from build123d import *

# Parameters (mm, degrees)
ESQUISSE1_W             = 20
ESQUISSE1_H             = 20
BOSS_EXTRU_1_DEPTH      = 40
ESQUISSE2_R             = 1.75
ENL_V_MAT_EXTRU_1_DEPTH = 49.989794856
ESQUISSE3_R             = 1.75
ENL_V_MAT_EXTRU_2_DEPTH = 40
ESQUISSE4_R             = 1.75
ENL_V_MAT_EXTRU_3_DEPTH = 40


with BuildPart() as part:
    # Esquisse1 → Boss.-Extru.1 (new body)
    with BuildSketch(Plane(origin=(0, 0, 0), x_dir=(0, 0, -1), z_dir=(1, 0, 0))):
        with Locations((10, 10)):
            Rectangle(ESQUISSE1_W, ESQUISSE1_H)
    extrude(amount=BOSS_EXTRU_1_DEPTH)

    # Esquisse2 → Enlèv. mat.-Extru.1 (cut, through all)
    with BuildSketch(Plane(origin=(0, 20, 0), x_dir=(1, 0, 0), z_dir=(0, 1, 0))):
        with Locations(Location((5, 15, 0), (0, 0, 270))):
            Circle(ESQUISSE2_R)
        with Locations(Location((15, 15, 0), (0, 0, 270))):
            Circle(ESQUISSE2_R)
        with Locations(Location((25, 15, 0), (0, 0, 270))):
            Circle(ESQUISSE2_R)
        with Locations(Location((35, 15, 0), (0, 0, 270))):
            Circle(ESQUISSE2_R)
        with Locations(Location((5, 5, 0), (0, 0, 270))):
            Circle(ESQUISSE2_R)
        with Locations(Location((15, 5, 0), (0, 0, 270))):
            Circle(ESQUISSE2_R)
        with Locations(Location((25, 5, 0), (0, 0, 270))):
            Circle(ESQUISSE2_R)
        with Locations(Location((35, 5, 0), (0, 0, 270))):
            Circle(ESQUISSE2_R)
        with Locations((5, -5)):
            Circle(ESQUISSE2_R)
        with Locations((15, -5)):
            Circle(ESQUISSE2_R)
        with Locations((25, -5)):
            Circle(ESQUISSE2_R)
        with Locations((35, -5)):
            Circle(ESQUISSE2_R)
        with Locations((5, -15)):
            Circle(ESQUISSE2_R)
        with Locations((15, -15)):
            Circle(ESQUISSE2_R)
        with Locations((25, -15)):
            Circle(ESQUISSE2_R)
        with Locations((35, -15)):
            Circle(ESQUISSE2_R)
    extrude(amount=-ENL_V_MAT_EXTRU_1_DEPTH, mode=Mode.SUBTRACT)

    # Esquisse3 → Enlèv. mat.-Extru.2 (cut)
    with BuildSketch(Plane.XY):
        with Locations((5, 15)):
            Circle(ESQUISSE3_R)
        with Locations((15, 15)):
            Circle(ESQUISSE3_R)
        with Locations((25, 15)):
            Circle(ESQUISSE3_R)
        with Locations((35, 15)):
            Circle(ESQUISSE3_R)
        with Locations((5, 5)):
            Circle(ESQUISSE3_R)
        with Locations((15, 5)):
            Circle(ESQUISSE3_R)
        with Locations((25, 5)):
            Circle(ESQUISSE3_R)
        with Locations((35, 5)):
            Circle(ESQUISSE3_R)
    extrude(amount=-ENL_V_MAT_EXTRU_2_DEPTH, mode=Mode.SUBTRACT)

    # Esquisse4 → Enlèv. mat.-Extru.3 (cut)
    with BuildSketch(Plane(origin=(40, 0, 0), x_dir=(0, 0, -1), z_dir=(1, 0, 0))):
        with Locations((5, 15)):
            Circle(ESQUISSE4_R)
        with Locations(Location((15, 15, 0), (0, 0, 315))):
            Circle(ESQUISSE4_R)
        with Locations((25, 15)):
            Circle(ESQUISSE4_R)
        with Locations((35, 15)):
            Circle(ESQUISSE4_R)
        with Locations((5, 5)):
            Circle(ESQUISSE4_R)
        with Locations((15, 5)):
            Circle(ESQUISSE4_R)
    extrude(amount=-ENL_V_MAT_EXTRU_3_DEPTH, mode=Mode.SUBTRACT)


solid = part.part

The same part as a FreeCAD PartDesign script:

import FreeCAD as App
import Part
import Sketcher
Q = App.Units.Quantity

doc = App.newDocument("Part")
params = doc.addObject("Spreadsheet::Sheet", "Params")
for row, (alias, value) in enumerate([
    ("sketch1_width", "20 mm"),
    ("pad1_length", "40 mm"),
    ("sketch2_diameter", "3.5 mm"),
    ("sketch3_diameter", "3.5 mm"),
    ("pocket2_length", "40 mm"),
    ("sketch4_diameter", "3.5 mm"),
    ("pocket3_length", "40 mm"),
], start=1):
    params.set(f"A{row}", alias)
    params.set(f"B{row}", "=" + value)
    params.setAlias(f"B{row}", alias)

body = doc.addObject("PartDesign::Body", "Body")

# Sketch on YZ plane
sketch1 = body.newObject("Sketcher::SketchObject", "Sketch")
sketch1.AttachmentSupport = (doc.getObject("YZ_Plane"), [""])
sketch1.MapMode = "FlatFace"
sketch1.addGeometry([
    Part.LineSegment(App.Vector(20, 0, 0), App.Vector(0, 0, 0)),
    Part.LineSegment(App.Vector(0, 0, 0), App.Vector(0, -20, 0)),
    Part.LineSegment(App.Vector(0, -20, 0), App.Vector(20, -20, 0)),
    Part.LineSegment(App.Vector(20, -20, 0), App.Vector(20, 0, 0)),
], False)
sketch1.addConstraint([
    Sketcher.Constraint("Coincident", 0, 2, 1, 1),
    Sketcher.Constraint("Coincident", 1, 2, 2, 1),
    Sketcher.Constraint("Coincident", 2, 2, 3, 1),
    Sketcher.Constraint("Coincident", 3, 2, 0, 1),
    Sketcher.Constraint("Horizontal", 0),
    Sketcher.Constraint("Vertical", 1),
    Sketcher.Constraint("Horizontal", 2),
    Sketcher.Constraint("Vertical", 3),
    Sketcher.Constraint("Coincident", 0, 2, -1, 1),
    Sketcher.Constraint("Equal", 2, 1),
    Sketcher.Constraint("DistanceX", 0, 2, 0, 1, Q("20 mm")),
])
sketch1.setExpression("Constraints[10]", "Params.sketch1_width")
pad1 = body.newObject("PartDesign::Pad", "Pad")
pad1.Profile = sketch1
pad1.setExpression("Length", "Params.pad1_length")

# Sketch on XZ plane
sketch2 = body.newObject("Sketcher::SketchObject", "Sketch001")
sketch2.AttachmentSupport = (doc.getObject("XZ_Plane"), [""])
sketch2.MapMode = "FlatFace"
sketch2.AttachmentOffset = App.Placement(App.Vector(0, 0, -20), App.Rotation())
sketch2.addGeometry([
    Part.Circle(App.Vector(5, -15, 0), App.Vector(0, 0, 1), 1.8),  # 0
    Part.Circle(App.Vector(15, -15, 0), App.Vector(0, 0, 1), 1.8),  # 1
    Part.Circle(App.Vector(25, -15, 0), App.Vector(0, 0, 1), 1.8),  # 2
    Part.Circle(App.Vector(35, -15, 0), App.Vector(0, 0, 1), 1.8),  # 3
    Part.Circle(App.Vector(5, -5, 0), App.Vector(0, 0, 1), 1.8),  # 4
    Part.Circle(App.Vector(15, -5, 0), App.Vector(0, 0, 1), 1.8),  # 5
    Part.Circle(App.Vector(25, -5, 0), App.Vector(0, 0, 1), 1.8),  # 6
    Part.Circle(App.Vector(35, -5, 0), App.Vector(0, 0, 1), 1.8),  # 7
    Part.Circle(App.Vector(5, 5, 0), App.Vector(0, 0, 1), 1.8),  # 8
    Part.Circle(App.Vector(15, 5, 0), App.Vector(0, 0, 1), 1.8),  # 9
    Part.Circle(App.Vector(25, 5, 0), App.Vector(0, 0, 1), 1.8),  # 10
    Part.Circle(App.Vector(35, 5, 0), App.Vector(0, 0, 1), 1.8),  # 11
    Part.Circle(App.Vector(5, 15, 0), App.Vector(0, 0, 1), 1.8),  # 12
    Part.Circle(App.Vector(15, 15, 0), App.Vector(0, 0, 1), 1.8),  # 13
    Part.Circle(App.Vector(25, 15, 0), App.Vector(0, 0, 1), 1.8),  # 14
    Part.Circle(App.Vector(35, 15, 0), App.Vector(0, 0, 1), 1.8),  # 15
], False)
sketch2.addConstraint([
    Sketcher.Constraint("Equal", 0, 1),
    Sketcher.Constraint("Equal", 1, 2),
    Sketcher.Constraint("Equal", 2, 3),
    Sketcher.Constraint("Equal", 3, 4),
    Sketcher.Constraint("Equal", 4, 5),
    Sketcher.Constraint("Equal", 5, 6),
    Sketcher.Constraint("Equal", 6, 7),
    Sketcher.Constraint("Equal", 7, 8),
    Sketcher.Constraint("Equal", 8, 9),
    Sketcher.Constraint("Equal", 9, 10),
    Sketcher.Constraint("Equal", 10, 11),
    Sketcher.Constraint("Equal", 11, 12),
    Sketcher.Constraint("Equal", 12, 13),
    Sketcher.Constraint("Equal", 13, 14),
    Sketcher.Constraint("Equal", 14, 15),
    Sketcher.Constraint("Symmetric", 4, 3, 8, 3, -1),
    Sketcher.Constraint("Symmetric", 5, 3, 9, 3, -1),
    Sketcher.Constraint("Symmetric", 6, 3, 10, 3, -1),
    Sketcher.Constraint("Symmetric", 7, 3, 11, 3, -1),
    Sketcher.Constraint("Symmetric", 0, 3, 12, 3, -1),
    Sketcher.Constraint("Symmetric", 1, 3, 13, 3, -1),
    Sketcher.Constraint("Symmetric", 2, 3, 14, 3, -1),
    Sketcher.Constraint("Symmetric", 3, 3, 15, 3, -1),
    Sketcher.Constraint("Horizontal", 0, 3, 1, 3),
    Sketcher.Constraint("Horizontal", 1, 3, 2, 3),
    Sketcher.Constraint("Horizontal", 2, 3, 3, 3),
    Sketcher.Constraint("Horizontal", 4, 3, 5, 3),
    Sketcher.Constraint("Horizontal", 5, 3, 6, 3),
    Sketcher.Constraint("Horizontal", 6, 3, 7, 3),
    Sketcher.Constraint("Vertical", 0, 3, 4, 3),
    Sketcher.Constraint("Vertical", 1, 3, 5, 3),
    Sketcher.Constraint("Vertical", 2, 3, 6, 3),
    Sketcher.Constraint("Vertical", 3, 3, 7, 3),
    Sketcher.Constraint("Diameter", 0, Q("3.5 mm")),
    Sketcher.Constraint("DistanceX", -1, 1, 0, 3, Q("5 mm")),
    Sketcher.Constraint("DistanceY", 0, 3, -1, 1, Q("15 mm")),
    Sketcher.Constraint("DistanceX", -1, 1, 1, 3, Q("15 mm")),
    Sketcher.Constraint("DistanceX", -1, 1, 2, 3, Q("25 mm")),
    Sketcher.Constraint("DistanceX", -1, 1, 3, 3, Q("35 mm")),
    Sketcher.Constraint("DistanceY", 4, 3, -1, 1, Q("5 mm")),
])
sketch2.setExpression("Constraints[33]", "Params.sketch2_diameter")
pocket1 = body.newObject("PartDesign::Pocket", "Pocket")
pocket1.Profile = sketch2
pocket1.Type = "ThroughAll"
pocket1.Reversed = True

# Sketch on XY plane
sketch3 = body.newObject("Sketcher::SketchObject", "Sketch002")
sketch3.AttachmentSupport = (doc.getObject("XY_Plane"), [""])
sketch3.MapMode = "FlatFace"
sketch3.addGeometry([
    Part.Circle(App.Vector(5, 15, 0), App.Vector(0, 0, 1), 1.8),  # 0
    Part.Circle(App.Vector(15, 15, 0), App.Vector(0, 0, 1), 1.8),  # 1
    Part.Circle(App.Vector(25, 15, 0), App.Vector(0, 0, 1), 1.8),  # 2
    Part.Circle(App.Vector(35, 15, 0), App.Vector(0, 0, 1), 1.8),  # 3
    Part.Circle(App.Vector(5, 5, 0), App.Vector(0, 0, 1), 1.8),  # 4
    Part.Circle(App.Vector(15, 5, 0), App.Vector(0, 0, 1), 1.8),  # 5
    Part.Circle(App.Vector(25, 5, 0), App.Vector(0, 0, 1), 1.8),  # 6
    Part.Circle(App.Vector(35, 5, 0), App.Vector(0, 0, 1), 1.8),  # 7
], False)
sketch3.addConstraint([
    Sketcher.Constraint("Equal", 0, 1),
    Sketcher.Constraint("Equal", 1, 2),
    Sketcher.Constraint("Equal", 2, 3),
    Sketcher.Constraint("Equal", 3, 4),
    Sketcher.Constraint("Equal", 4, 5),
    Sketcher.Constraint("Equal", 5, 6),
    Sketcher.Constraint("Equal", 6, 7),
    Sketcher.Constraint("Horizontal", 0, 3, 1, 3),
    Sketcher.Constraint("Horizontal", 1, 3, 2, 3),
    Sketcher.Constraint("Horizontal", 2, 3, 3, 3),
    Sketcher.Constraint("Horizontal", 4, 3, 5, 3),
    Sketcher.Constraint("Horizontal", 5, 3, 6, 3),
    Sketcher.Constraint("Horizontal", 6, 3, 7, 3),
    Sketcher.Constraint("Vertical", 0, 3, 4, 3),
    Sketcher.Constraint("Vertical", 1, 3, 5, 3),
    Sketcher.Constraint("Vertical", 2, 3, 6, 3),
    Sketcher.Constraint("Vertical", 3, 3, 7, 3),
    Sketcher.Constraint("Diameter", 0, Q("3.5 mm")),
    Sketcher.Constraint("DistanceX", -1, 1, 0, 3, Q("5 mm")),
    Sketcher.Constraint("DistanceY", -1, 1, 0, 3, Q("15 mm")),
    Sketcher.Constraint("DistanceX", -1, 1, 1, 3, Q("15 mm")),
    Sketcher.Constraint("DistanceX", -1, 1, 2, 3, Q("25 mm")),
    Sketcher.Constraint("DistanceX", -1, 1, 3, 3, Q("35 mm")),
    Sketcher.Constraint("DistanceY", -1, 1, 4, 3, Q("5 mm")),
])
sketch3.setExpression("Constraints[17]", "Params.sketch3_diameter")
pocket2 = body.newObject("PartDesign::Pocket", "Pocket001")
pocket2.Profile = sketch3
pocket2.setExpression("Length", "Params.pocket2_length")

# Sketch on YZ plane
sketch4 = body.newObject("Sketcher::SketchObject", "Sketch003")
sketch4.AttachmentSupport = (doc.getObject("YZ_Plane"), [""])
sketch4.MapMode = "FlatFace"
sketch4.AttachmentOffset = App.Placement(App.Vector(0, 0, 40), App.Rotation())
sketch4.addGeometry([
    Part.Circle(App.Vector(15, -5, 0), App.Vector(0, 0, 1), 1.8),  # 0
    Part.Circle(App.Vector(15, -15, 0), App.Vector(0, 0, 1), 1.8),  # 1
    Part.Circle(App.Vector(15, -25, 0), App.Vector(0, 0, 1), 1.8),  # 2
    Part.Circle(App.Vector(15, -35, 0), App.Vector(0, 0, 1), 1.8),  # 3
    Part.Circle(App.Vector(5, -5, 0), App.Vector(0, 0, 1), 1.8),  # 4
    Part.Circle(App.Vector(5, -15, 0), App.Vector(0, 0, 1), 1.8),  # 5
], False)
sketch4.addConstraint([
    Sketcher.Constraint("Equal", 0, 1),
    Sketcher.Constraint("Equal", 1, 2),
    Sketcher.Constraint("Equal", 2, 3),
    Sketcher.Constraint("Equal", 3, 4),
    Sketcher.Constraint("Equal", 4, 5),
    Sketcher.Constraint("Horizontal", 0, 3, 4, 3),
    Sketcher.Constraint("Horizontal", 1, 3, 5, 3),
    Sketcher.Constraint("Vertical", 0, 3, 1, 3),
    Sketcher.Constraint("Vertical", 1, 3, 2, 3),
    Sketcher.Constraint("Vertical", 2, 3, 3, 3),
    Sketcher.Constraint("Vertical", 4, 3, 5, 3),
    Sketcher.Constraint("Diameter", 0, Q("3.5 mm")),
    Sketcher.Constraint("DistanceX", -1, 1, 0, 3, Q("15 mm")),
    Sketcher.Constraint("DistanceY", 0, 3, -1, 1, Q("5 mm")),
    Sketcher.Constraint("DistanceY", 1, 3, -1, 1, Q("15 mm")),
    Sketcher.Constraint("DistanceY", 2, 3, -1, 1, Q("25 mm")),
    Sketcher.Constraint("DistanceY", 3, 3, -1, 1, Q("35 mm")),
    Sketcher.Constraint("DistanceX", -1, 1, 4, 3, Q("5 mm")),
])
sketch4.setExpression("Constraints[11]", "Params.sketch4_diameter")
pocket3 = body.newObject("PartDesign::Pocket", "Pocket002")
pocket3.Profile = sketch4
pocket3.setExpression("Length", "Params.pocket3_length")

doc.recompute()
